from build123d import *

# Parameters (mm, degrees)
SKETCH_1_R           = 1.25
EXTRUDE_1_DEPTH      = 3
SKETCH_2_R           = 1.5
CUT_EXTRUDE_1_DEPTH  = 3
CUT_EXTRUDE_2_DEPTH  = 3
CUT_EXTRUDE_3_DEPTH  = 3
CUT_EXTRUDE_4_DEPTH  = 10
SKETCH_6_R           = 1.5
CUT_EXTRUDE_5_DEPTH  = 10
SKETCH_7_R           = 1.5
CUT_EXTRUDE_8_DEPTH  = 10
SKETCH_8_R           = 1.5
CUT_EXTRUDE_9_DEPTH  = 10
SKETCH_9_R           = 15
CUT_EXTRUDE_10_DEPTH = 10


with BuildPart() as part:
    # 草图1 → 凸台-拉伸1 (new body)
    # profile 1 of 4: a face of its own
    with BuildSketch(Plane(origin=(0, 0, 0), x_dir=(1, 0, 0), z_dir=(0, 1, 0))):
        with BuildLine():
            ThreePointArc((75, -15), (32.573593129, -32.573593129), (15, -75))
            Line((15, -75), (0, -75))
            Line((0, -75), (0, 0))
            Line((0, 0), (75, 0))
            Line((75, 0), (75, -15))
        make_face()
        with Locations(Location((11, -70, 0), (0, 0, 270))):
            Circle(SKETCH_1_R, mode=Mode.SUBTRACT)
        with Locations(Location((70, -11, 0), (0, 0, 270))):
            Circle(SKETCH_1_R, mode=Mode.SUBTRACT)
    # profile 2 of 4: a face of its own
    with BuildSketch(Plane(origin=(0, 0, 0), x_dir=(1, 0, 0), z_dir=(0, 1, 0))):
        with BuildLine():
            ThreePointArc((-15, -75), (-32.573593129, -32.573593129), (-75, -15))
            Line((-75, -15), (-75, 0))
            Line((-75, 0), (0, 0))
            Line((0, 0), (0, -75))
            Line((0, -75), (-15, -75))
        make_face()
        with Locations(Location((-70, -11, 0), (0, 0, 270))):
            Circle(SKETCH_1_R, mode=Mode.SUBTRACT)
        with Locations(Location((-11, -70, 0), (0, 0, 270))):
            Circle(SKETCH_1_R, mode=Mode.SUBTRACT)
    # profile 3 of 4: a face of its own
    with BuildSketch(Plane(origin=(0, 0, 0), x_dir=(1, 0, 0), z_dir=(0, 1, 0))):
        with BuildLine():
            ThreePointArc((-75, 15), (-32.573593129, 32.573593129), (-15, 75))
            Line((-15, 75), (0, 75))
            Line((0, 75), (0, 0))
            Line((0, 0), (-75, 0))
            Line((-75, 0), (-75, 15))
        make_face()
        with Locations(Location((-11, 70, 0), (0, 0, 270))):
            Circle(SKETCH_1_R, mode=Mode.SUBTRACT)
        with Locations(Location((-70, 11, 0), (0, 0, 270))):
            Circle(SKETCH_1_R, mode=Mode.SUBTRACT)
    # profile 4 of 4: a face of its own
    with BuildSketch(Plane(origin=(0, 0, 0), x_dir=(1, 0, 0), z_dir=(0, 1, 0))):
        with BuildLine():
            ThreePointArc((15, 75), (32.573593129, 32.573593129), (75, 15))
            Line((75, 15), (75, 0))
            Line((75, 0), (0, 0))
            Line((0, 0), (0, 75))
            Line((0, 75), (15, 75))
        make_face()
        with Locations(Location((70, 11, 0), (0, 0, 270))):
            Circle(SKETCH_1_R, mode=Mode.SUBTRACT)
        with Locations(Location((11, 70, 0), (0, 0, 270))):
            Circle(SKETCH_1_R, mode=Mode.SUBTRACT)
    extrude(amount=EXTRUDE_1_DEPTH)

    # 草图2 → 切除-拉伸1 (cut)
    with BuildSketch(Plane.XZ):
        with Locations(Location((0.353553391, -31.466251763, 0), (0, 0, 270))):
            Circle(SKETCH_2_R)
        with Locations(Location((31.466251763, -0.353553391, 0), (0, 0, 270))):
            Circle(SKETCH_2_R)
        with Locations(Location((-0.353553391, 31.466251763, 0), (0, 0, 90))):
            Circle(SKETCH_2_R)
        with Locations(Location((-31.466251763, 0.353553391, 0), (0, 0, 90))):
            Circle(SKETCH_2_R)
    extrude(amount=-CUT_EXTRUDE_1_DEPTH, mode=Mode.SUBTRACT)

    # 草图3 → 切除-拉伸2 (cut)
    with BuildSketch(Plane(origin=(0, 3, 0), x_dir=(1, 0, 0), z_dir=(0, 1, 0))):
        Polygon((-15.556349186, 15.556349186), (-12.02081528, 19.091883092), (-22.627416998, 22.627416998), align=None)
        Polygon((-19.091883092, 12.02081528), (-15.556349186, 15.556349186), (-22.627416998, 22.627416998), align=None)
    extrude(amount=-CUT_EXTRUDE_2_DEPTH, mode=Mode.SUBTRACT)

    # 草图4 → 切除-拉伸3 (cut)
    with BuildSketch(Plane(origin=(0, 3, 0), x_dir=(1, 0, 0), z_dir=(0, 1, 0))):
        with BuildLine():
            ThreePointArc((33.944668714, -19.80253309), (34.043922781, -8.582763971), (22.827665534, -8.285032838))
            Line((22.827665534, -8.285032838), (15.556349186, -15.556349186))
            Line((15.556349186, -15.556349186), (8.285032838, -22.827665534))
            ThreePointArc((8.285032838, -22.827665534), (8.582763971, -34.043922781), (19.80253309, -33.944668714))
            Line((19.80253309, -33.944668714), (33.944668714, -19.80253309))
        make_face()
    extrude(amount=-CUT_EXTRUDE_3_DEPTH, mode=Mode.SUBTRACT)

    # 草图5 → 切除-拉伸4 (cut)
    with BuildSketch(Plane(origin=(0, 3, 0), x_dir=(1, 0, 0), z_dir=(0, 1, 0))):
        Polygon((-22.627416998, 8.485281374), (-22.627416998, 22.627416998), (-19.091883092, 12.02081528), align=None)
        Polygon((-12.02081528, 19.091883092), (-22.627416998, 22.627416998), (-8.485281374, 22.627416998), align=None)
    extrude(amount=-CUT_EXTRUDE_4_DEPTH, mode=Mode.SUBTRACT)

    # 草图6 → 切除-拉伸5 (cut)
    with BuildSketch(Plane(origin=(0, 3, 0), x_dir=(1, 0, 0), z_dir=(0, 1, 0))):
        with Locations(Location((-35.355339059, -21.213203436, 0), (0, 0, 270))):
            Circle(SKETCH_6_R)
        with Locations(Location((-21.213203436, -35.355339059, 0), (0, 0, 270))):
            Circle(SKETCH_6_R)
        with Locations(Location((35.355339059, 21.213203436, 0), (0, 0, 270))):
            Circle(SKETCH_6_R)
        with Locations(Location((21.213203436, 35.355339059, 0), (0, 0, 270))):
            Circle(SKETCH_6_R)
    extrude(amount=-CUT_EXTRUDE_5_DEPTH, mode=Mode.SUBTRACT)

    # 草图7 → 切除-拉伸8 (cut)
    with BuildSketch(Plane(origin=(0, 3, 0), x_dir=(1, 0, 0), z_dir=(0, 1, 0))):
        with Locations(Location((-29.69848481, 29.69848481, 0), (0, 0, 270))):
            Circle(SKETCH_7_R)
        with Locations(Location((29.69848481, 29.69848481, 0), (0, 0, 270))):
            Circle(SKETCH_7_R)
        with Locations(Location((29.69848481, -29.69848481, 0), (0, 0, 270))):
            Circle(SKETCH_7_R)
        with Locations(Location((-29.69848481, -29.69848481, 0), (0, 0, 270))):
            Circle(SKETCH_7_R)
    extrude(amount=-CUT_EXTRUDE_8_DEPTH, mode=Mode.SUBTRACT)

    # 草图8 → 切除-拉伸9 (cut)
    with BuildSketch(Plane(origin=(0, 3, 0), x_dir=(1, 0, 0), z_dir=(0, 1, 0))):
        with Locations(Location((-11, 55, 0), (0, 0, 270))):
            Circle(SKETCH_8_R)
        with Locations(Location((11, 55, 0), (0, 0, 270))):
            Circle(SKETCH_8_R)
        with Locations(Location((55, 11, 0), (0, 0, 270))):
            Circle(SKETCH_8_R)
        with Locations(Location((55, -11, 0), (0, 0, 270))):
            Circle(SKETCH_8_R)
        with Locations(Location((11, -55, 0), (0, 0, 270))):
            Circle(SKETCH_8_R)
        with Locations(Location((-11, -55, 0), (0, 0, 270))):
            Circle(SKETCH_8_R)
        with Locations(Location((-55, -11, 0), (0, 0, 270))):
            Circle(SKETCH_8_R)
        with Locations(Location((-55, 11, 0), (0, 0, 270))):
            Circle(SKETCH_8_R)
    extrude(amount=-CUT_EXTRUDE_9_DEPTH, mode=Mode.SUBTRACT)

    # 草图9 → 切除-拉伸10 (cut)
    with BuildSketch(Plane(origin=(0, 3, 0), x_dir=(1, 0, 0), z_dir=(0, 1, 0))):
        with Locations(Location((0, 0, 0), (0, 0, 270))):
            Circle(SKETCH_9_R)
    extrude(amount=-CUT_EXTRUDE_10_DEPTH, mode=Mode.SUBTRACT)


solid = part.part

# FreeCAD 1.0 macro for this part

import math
import FreeCAD as App
import Part
import Sketcher

V = App.Vector
Q = App.Units.Quantity


def add_polygon(sketch, points):
    """Adds a closed chain of lines whose ends are joined by coincident constraints."""
    first, n = sketch.GeometryCount, len(points)
    for a, b in zip(points, points[1:] + points[:1]):
        sketch.addGeometry(Part.LineSegment(App.Vector(*a, 0), App.Vector(*b, 0)), False)
    for i in range(n):
        sketch.addConstraint(Sketcher.Constraint("Coincident", first + i, 2, first + (i + 1) % n, 1))

doc = App.newDocument("Part")
body = doc.addObject("PartDesign::Body", "Body")

# Sketch on XZ plane
sketch1 = body.newObject("Sketcher::SketchObject", "Sketch")
sketch1.AttachmentSupport = (doc.getObject("XZ_Plane"), [""])
sketch1.MapMode = "FlatFace"
sketch1.addGeometry(Part.ArcOfCircle(Part.Circle(V(75, 75, 0), V(0, 0, 1), 60), math.radians(-180), math.radians(-90)), False)
sketch1.addGeometry(Part.LineSegment(V(75, 15, 0), V(75, -15, 0)), False)
sketch1.addGeometry(Part.ArcOfCircle(Part.Circle(V(75, -75, 0), V(0, 0, 1), 60), math.radians(90), math.radians(180)), False)
sketch1.addGeometry(Part.LineSegment(V(15, -75, 0), V(-15, -75, 0)), False)
sketch1.addGeometry(Part.ArcOfCircle(Part.Circle(V(-75, -75, 0), V(0, 0, 1), 60), math.radians(0), math.radians(90)), False)
sketch1.addGeometry(Part.LineSegment(V(-75, -15, 0), V(-75, 15, 0)), False)
sketch1.addGeometry(Part.ArcOfCircle(Part.Circle(V(-75, 75, 0), V(0, 0, 1), 60), math.radians(-90), math.radians(0)), False)
sketch1.addGeometry(Part.LineSegment(V(-15, 75, 0), V(15, 75, 0)), False)
sketch1.addGeometry(Part.Circle(V(11, 70, 0), V(0, 0, 1), 1.25), False)
sketch1.addGeometry(Part.Circle(V(70, 11, 0), V(0, 0, 1), 1.25), False)
sketch1.addGeometry(Part.Circle(V(11, -70, 0), V(0, 0, 1), 1.25), False)
sketch1.addGeometry(Part.Circle(V(70, -11, 0), V(0, 0, 1), 1.25), False)
sketch1.addGeometry(Part.Circle(V(-70, 11, 0), V(0, 0, 1), 1.25), False)
sketch1.addGeometry(Part.Circle(V(-11, 70, 0), V(0, 0, 1), 1.25), False)
sketch1.addGeometry(Part.Circle(V(-70, -11, 0), V(0, 0, 1), 1.25), False)
sketch1.addGeometry(Part.Circle(V(-11, -70, 0), V(0, 0, 1), 1.25), False)
sketch1.addConstraint(Sketcher.Constraint("Coincident", 0, 2, 1, 1))
sketch1.addConstraint(Sketcher.Constraint("Coincident", 1, 2, 2, 1))
sketch1.addConstraint(Sketcher.Constraint("Coincident", 2, 2, 3, 1))
sketch1.addConstraint(Sketcher.Constraint("Coincident", 3, 2, 4, 1))
sketch1.addConstraint(Sketcher.Constraint("Coincident", 4, 2, 5, 1))
sketch1.addConstraint(Sketcher.Constraint("Coincident", 5, 2, 6, 1))
sketch1.addConstraint(Sketcher.Constraint("Coincident", 6, 2, 7, 1))
sketch1.addConstraint(Sketcher.Constraint("Coincident", 7, 2, 0, 1))
sketch1.addConstraint(Sketcher.Constraint("Vertical", 1))
sketch1.addConstraint(Sketcher.Constraint("Horizontal", 3))
sketch1.addConstraint(Sketcher.Constraint("Vertical", 5))
sketch1.addConstraint(Sketcher.Constraint("Horizontal", 7))
sketch1.addConstraint(Sketcher.Constraint("Equal", 0, 2))
sketch1.addConstraint(Sketcher.Constraint("Equal", 2, 4))
sketch1.addConstraint(Sketcher.Constraint("Equal", 4, 6))
sketch1.addConstraint(Sketcher.Constraint("Equal", 8, 9))
sketch1.addConstraint(Sketcher.Constraint("Equal", 9, 10))
sketch1.addConstraint(Sketcher.Constraint("Equal", 10, 11))
sketch1.addConstraint(Sketcher.Constraint("Equal", 11, 12))
sketch1.addConstraint(Sketcher.Constraint("Equal", 12, 13))
sketch1.addConstraint(Sketcher.Constraint("Equal", 13, 14))
sketch1.addConstraint(Sketcher.Constraint("Equal", 14, 15))
sketch1.addConstraint(Sketcher.Constraint("Symmetric", 0, 3, 4, 3, -1, 1))
sketch1.addConstraint(Sketcher.Constraint("Symmetric", 2, 3, 6, 3, -1, 1))
sketch1.addConstraint(Sketcher.Constraint("Symmetric", 11, 3, 12, 3, -1, 1))
sketch1.addConstraint(Sketcher.Constraint("Symmetric", 10, 3, 13, 3, -1, 1))
sketch1.addConstraint(Sketcher.Constraint("Symmetric", 9, 3, 14, 3, -1, 1))
sketch1.addConstraint(Sketcher.Constraint("Symmetric", 8, 3, 15, 3, -1, 1))
sketch1.addConstraint(Sketcher.Constraint("Symmetric", 2, 3, 4, 3, -2))
sketch1.addConstraint(Sketcher.Constraint("Symmetric", 9, 3, 12, 3, -2))
sketch1.addConstraint(Sketcher.Constraint("Symmetric", 8, 3, 13, 3, -2))
sketch1.addConstraint(Sketcher.Constraint("Horizontal", 4, 3, 2, 2))
sketch1.addConstraint(Sketcher.Constraint("Horizontal", 0, 3, 6, 2))
sketch1.addConstraint(Sketcher.Constraint("Vertical", 2, 3, 0, 2))
sketch1.addConstraint(Sketcher.Constraint("Vertical", 6, 3, 4, 2))
sketch1.addConstraint(Sketcher.Constraint("Equal", 7, 1))
sketch1.addConstraint(Sketcher.Constraint("Radius", 0, Q("60 mm")))
sketch1.addConstraint(Sketcher.Constraint("Diameter", 8, Q("2.5 mm")))
sketch1.addConstraint(Sketcher.Constraint("DistanceX", 3, 2, 3, 1, Q("30 mm")))
sketch1.addConstraint(Sketcher.Constraint("DistanceX", -1, 1, 8, 3, Q("11 mm")))
sketch1.addConstraint(Sketcher.Constraint("DistanceY", -1, 1, 8, 3, Q("70 mm")))
sketch1.addConstraint(Sketcher.Constraint("DistanceX", -1, 1, 9, 3, Q("70 mm")))
sketch1.addConstraint(Sketcher.Constraint("DistanceY", -1, 1, 9, 3, Q("11 mm")))
pad1 = body.newObject("PartDesign::Pad", "Pad")
pad1.Profile = sketch1
pad1.Length = 3
pad1.Reversed = True

# Sketch on XZ plane
sketch2 = body.newObject("Sketcher::SketchObject", "Sketch001")
sketch2.AttachmentSupport = (doc.getObject("XZ_Plane"), [""])
sketch2.MapMode = "FlatFace"
sketch2.addGeometry(Part.Circle(V(0.353553, -31.466252, 0), V(0, 0, 1), 1.5), False)
sketch2.addGeometry(Part.Circle(V(31.466252, -0.353553, 0), V(0, 0, 1), 1.5), False)
sketch2.addGeometry(Part.Circle(V(-0.353553, 31.466252, 0), V(0, 0, 1), 1.5), False)
sketch2.addGeometry(Part.Circle(V(-31.466252, 0.353553, 0), V(0, 0, 1), 1.5), False)
sketch2.addConstraint(Sketcher.Constraint("Equal", 0, 1))
sketch2.addConstraint(Sketcher.Constraint("Equal", 1, 2))
sketch2.addConstraint(Sketcher.Constraint("Equal", 2, 3))
sketch2.addConstraint(Sketcher.Constraint("Symmetric", 0, 3, 2, 3, -1, 1))
sketch2.addConstraint(Sketcher.Constraint("Symmetric", 1, 3, 3, 3, -1, 1))
sketch2.addConstraint(Sketcher.Constraint("Diameter", 0, Q("3 mm")))
sketch2.addConstraint(Sketcher.Constraint("DistanceX", 0, 3, 1, 3, Q("31.112698 mm")))
sketch2.addConstraint(Sketcher.Constraint("DistanceY", 0, 3, 1, 3, Q("31.112698 mm")))
sketch2.addConstraint(Sketcher.Constraint("DistanceY", 0, 3, -1, 1, Q("31.466252 mm")))
sketch2.addConstraint(Sketcher.Constraint("DistanceX", -1, 1, 1, 3, Q("31.466252 mm")))
pocket1 = body.newObject("PartDesign::Pocket", "Pocket")
pocket1.Profile = sketch2
pocket1.Length = 3

# Sketch on XZ plane
sketch3 = body.newObject("Sketcher::SketchObject", "Sketch002")
sketch3.AttachmentSupport = (doc.getObject("XZ_Plane"), [""])
sketch3.MapMode = "FlatFace"
sketch3.AttachmentOffset = App.Placement(V(0, 0, -3), App.Rotation())
add_polygon(sketch3, [(-12.020815, -19.091883), (-22.627417, -22.627417), (-19.091883, -12.020815)])  # lines 0-2
sketch3.addConstraint(Sketcher.Constraint("Equal", 0, 1))
sketch3.addConstraint(Sketcher.Constraint("Angle", 2, Q("-45 deg")))
sketch3.addConstraint(Sketcher.Constraint("Distance", 2, Q("10 mm")))
sketch3.addConstraint(Sketcher.Constraint("DistanceY", 0, 2, 1, 2, Q("10.606602 mm")))
sketch3.addConstraint(Sketcher.Constraint("DistanceX", 0, 2, -1, 1, Q("22.627417 mm")))
sketch3.addConstraint(Sketcher.Constraint("DistanceY", 0, 2, -1, 1, Q("22.627417 mm")))
pocket2 = body.newObject("PartDesign::Pocket", "Pocket001")
pocket2.Profile = sketch3
pocket2.Length = 3
pocket2.Reversed = True

# Sketch on XZ plane
sketch4 = body.newObject("Sketcher::SketchObject", "Sketch003")
sketch4.AttachmentSupport = (doc.getObject("XZ_Plane"), [""])
sketch4.MapMode = "FlatFace"
sketch4.AttachmentOffset = App.Placement(V(0, 0, -3), App.Rotation())
sketch4.addGeometry(Part.ArcOfCircle(Part.Circle(V(28.284271, 14.142136, 0), V(0, 0, 1), 8.005011), math.radians(-132.972618), math.radians(45)), False)
sketch4.addGeometry(Part.LineSegment(V(22.827666, 8.285033, 0), V(8.285033, 22.827666, 0)), False)
sketch4.addGeometry(Part.ArcOfCircle(Part.Circle(V(14.142136, 28.284271, 0), V(0, 0, 1), 8.005011), math.radians(45), math.radians(222.972618)), False)
sketch4.addGeometry(Part.LineSegment(V(19.802533, 33.944669, 0), V(33.944669, 19.802533, 0)), False)
sketch4.addConstraint(Sketcher.Constraint("Coincident", 0, 1, 1, 1))
sketch4.addConstraint(Sketcher.Constraint("Coincident", 1, 2, 2, 2))
sketch4.addConstraint(Sketcher.Constraint("Tangent", 2, 1, 3, 1))
sketch4.addConstraint(Sketcher.Constraint("Tangent", 3, 2, 0, 2))
sketch4.addConstraint(Sketcher.Constraint("Equal", 0, 2))
sketch4.addConstraint(Sketcher.Constraint("Parallel", 1, 3))
sketch4.addConstraint(Sketcher.Constraint("Angle", 1, Q("135 deg")))
sketch4.addConstraint(Sketcher.Constraint("Distance", 3, Q("20 mm")))
sketch4.addConstraint(Sketcher.Constraint("Radius", 0, Q("8.005011 mm")))
sketch4.addConstraint(Sketcher.Constraint("DistanceX", 1, 2, 2, 1, Q("11.5175 mm")))
sketch4.addConstraint(Sketcher.Constraint("DistanceX", -1, 1, 0, 3, Q("28.284271 mm")))
sketch4.addConstraint(Sketcher.Constraint("DistanceY", -1, 1, 2, 3, Q("28.284271 mm")))
pocket3 = body.newObject("PartDesign::Pocket", "Pocket002")
pocket3.Profile = sketch4
pocket3.Length = 3
pocket3.Reversed = True

# Sketch on XZ plane
sketch5 = body.newObject("Sketcher::SketchObject", "Sketch004")
sketch5.AttachmentSupport = (doc.getObject("XZ_Plane"), [""])
sketch5.MapMode = "FlatFace"
sketch5.AttachmentOffset = App.Placement(V(0, 0, -3), App.Rotation())
add_polygon(sketch5, [(-22.627417, -22.627417), (-22.627417, -8.485281), (-19.091883, -12.020815)])  # lines 0-2
add_polygon(sketch5, [(-22.627417, -22.627417), (-12.020815, -19.091883), (-8.485281, -22.627417)])  # lines 3-5
sketch5.addConstraint(Sketcher.Constraint("Vertical", 0))
sketch5.addConstraint(Sketcher.Constraint("Horizontal", 5))
sketch5.addConstraint(Sketcher.Constraint("Coincident", 5, 2, 2, 2))
sketch5.addConstraint(Sketcher.Constraint("Parallel", 1, 4))
sketch5.addConstraint(Sketcher.Constraint("Equal", 5, 0))
sketch5.addConstraint(Sketcher.Constraint("Equal", 2, 3))
sketch5.addConstraint(Sketcher.Constraint("Equal", 1, 4))
sketch5.addConstraint(Sketcher.Constraint("Distance", 1, Q("5 mm")))
sketch5.addConstraint(Sketcher.Constraint("DistanceY", 2, 2, 1, 2, Q("10.606602 mm")))
sketch5.addConstraint(Sketcher.Constraint("DistanceY", 0, 2, -1, 1, Q("8.485281 mm")))
sketch5.addConstraint(Sketcher.Constraint("DistanceX", 4, 2, -1, 1, Q("8.485281 mm")))
pocket4 = body.newObject("PartDesign::Pocket", "Pocket003")
pocket4.Profile = sketch5
pocket4.Length = 10
pocket4.Reversed = True

# Sketch on XZ plane
sketch6 = body.newObject("Sketcher::SketchObject", "Sketch005")
sketch6.AttachmentSupport = (doc.getObject("XZ_Plane"), [""])
sketch6.MapMode = "FlatFace"
sketch6.AttachmentOffset = App.Placement(V(0, 0, -3), App.Rotation())
sketch6.addGeometry(Part.Circle(V(-35.355339, 21.213203, 0), V(0, 0, 1), 1.5), False)
sketch6.addGeometry(Part.Circle(V(-21.213203, 35.355339, 0), V(0, 0, 1), 1.5), False)
sketch6.addGeometry(Part.Circle(V(35.355339, -21.213203, 0), V(0, 0, 1), 1.5), False)
sketch6.addGeometry(Part.Circle(V(21.213203, -35.355339, 0), V(0, 0, 1), 1.5), False)
sketch6.addConstraint(Sketcher.Constraint("Equal", 0, 1))
sketch6.addConstraint(Sketcher.Constraint("Equal", 1, 2))
sketch6.addConstraint(Sketcher.Constraint("Equal", 2, 3))
sketch6.addConstraint(Sketcher.Constraint("Symmetric", 0, 3, 2, 3, -1, 1))
sketch6.addConstraint(Sketcher.Constraint("Symmetric", 1, 3, 3, 3, -1, 1))
sketch6.addConstraint(Sketcher.Constraint("Diameter", 0, Q("3 mm")))
sketch6.addConstraint(Sketcher.Constraint("DistanceX", 0, 3, -1, 1, Q("35.355339 mm")))
sketch6.addConstraint(Sketcher.Constraint("DistanceY", -1, 1, 1, 3, Q("35.355339 mm")))
sketch6.addConstraint(Sketcher.Constraint("DistanceY", -1, 1, 0, 3, Q("21.213203 mm")))
sketch6.addConstraint(Sketcher.Constraint("DistanceX", 1, 3, -1, 1, Q("21.213203 mm")))
pocket5 = body.newObject("PartDesign::Pocket", "Pocket004")
pocket5.Profile = sketch6
pocket5.Length = 10
pocket5.Reversed = True

# Sketch on XZ plane
sketch7 = body.newObject("Sketcher::SketchObject", "Sketch006")
sketch7.AttachmentSupport = (doc.getObject("XZ_Plane"), [""])
sketch7.MapMode = "FlatFace"
sketch7.AttachmentOffset = App.Placement(V(0, 0, -3), App.Rotation())
sketch7.addGeometry(Part.Circle(V(-29.698485, -29.698485, 0), V(0, 0, 1), 1.5), False)
sketch7.addGeometry(Part.Circle(V(29.698485, -29.698485, 0), V(0, 0, 1), 1.5), False)
sketch7.addGeometry(Part.Circle(V(29.698485, 29.698485, 0), V(0, 0, 1), 1.5), False)
sketch7.addGeometry(Part.Circle(V(-29.698485, 29.698485, 0), V(0, 0, 1), 1.5), False)
sketch7.addConstraint(Sketcher.Constraint("Equal", 0, 1))
sketch7.addConstraint(Sketcher.Constraint("Equal", 1, 2))
sketch7.addConstraint(Sketcher.Constraint("Equal", 2, 3))
sketch7.addConstraint(Sketcher.Constraint("Symmetric", 0, 3, 2, 3, -1, 1))
sketch7.addConstraint(Sketcher.Constraint("Symmetric", 1, 3, 3, 3, -1, 1))
sketch7.addConstraint(Sketcher.Constraint("Symmetric", 0, 3, 1, 3, -2))
sketch7.addConstraint(Sketcher.Constraint("Diameter", 0, Q("3 mm")))
sketch7.addConstraint(Sketcher.Constraint("DistanceX", 0, 3, 1, 3, Q("59.39697 mm")))
sketch7.addConstraint(Sketcher.Constraint("DistanceY", 1, 3, 2, 3, Q("59.39697 mm")))
pocket6 = body.newObject("PartDesign::Pocket", "Pocket005")
pocket6.Profile = sketch7
pocket6.Length = 10
pocket6.Reversed = True

# Sketch on XZ plane
sketch8 = body.newObject("Sketcher::SketchObject", "Sketch007")
sketch8.AttachmentSupport = (doc.getObject("XZ_Plane"), [""])
sketch8.MapMode = "FlatFace"
sketch8.AttachmentOffset = App.Placement(V(0, 0, -3), App.Rotation())
sketch8.addGeometry(Part.Circle(V(-11, -55, 0), V(0, 0, 1), 1.5), False)
sketch8.addGeometry(Part.Circle(V(11, -55, 0), V(0, 0, 1), 1.5), False)
sketch8.addGeometry(Part.Circle(V(55, -11, 0), V(0, 0, 1), 1.5), False)
sketch8.addGeometry(Part.Circle(V(55, 11, 0), V(0, 0, 1), 1.5), False)
sketch8.addGeometry(Part.Circle(V(11, 55, 0), V(0, 0, 1), 1.5), False)
sketch8.addGeometry(Part.Circle(V(-11, 55, 0), V(0, 0, 1), 1.5), False)
sketch8.addGeometry(Part.Circle(V(-55, 11, 0), V(0, 0, 1), 1.5), False)
sketch8.addGeometry(Part.Circle(V(-55, -11, 0), V(0, 0, 1), 1.5), False)
sketch8.addConstraint(Sketcher.Constraint("Equal", 0, 1))
sketch8.addConstraint(Sketcher.Constraint("Equal", 1, 2))
sketch8.addConstraint(Sketcher.Constraint("Equal", 2, 3))
sketch8.addConstraint(Sketcher.Constraint("Equal", 3, 4))
sketch8.addConstraint(Sketcher.Constraint("Equal", 4, 5))
sketch8.addConstraint(Sketcher.Constraint("Equal", 5, 6))
sketch8.addConstraint(Sketcher.Constraint("Equal", 6, 7))
sketch8.addConstraint(Sketcher.Constraint("Symmetric", 0, 3, 4, 3, -1, 1))
sketch8.addConstraint(Sketcher.Constraint("Symmetric", 1, 3, 5, 3, -1, 1))
sketch8.addConstraint(Sketcher.Constraint("Symmetric", 2, 3, 6, 3, -1, 1))
sketch8.addConstraint(Sketcher.Constraint("Symmetric", 3, 3, 7, 3, -1, 1))
sketch8.addConstraint(Sketcher.Constraint("Symmetric", 0, 3, 1, 3, -2))
sketch8.addConstraint(Sketcher.Constraint("Symmetric", 3, 3, 6, 3, -2))
sketch8.addConstraint(Sketcher.Constraint("Diameter", 0, Q("3 mm")))
sketch8.addConstraint(Sketcher.Constraint("DistanceX", 0, 3, -1, 1, Q("11 mm")))
sketch8.addConstraint(Sketcher.Constraint("DistanceY", 0, 3, -1, 1, Q("55 mm")))
sketch8.addConstraint(Sketcher.Constraint("DistanceX", -1, 1, 2, 3, Q("55 mm")))
sketch8.addConstraint(Sketcher.Constraint("DistanceY", 2, 3, -1, 1, Q("11 mm")))
pocket7 = body.newObject("PartDesign::Pocket", "Pocket006")
pocket7.Profile = sketch8
pocket7.Length = 10
pocket7.Reversed = True

# Sketch on XZ plane
sketch9 = body.newObject("Sketcher::SketchObject", "Sketch008")
sketch9.AttachmentSupport = (doc.getObject("XZ_Plane"), [""])
sketch9.MapMode = "FlatFace"
sketch9.AttachmentOffset = App.Placement(V(0, 0, -3), App.Rotation())
sketch9.addGeometry(Part.Circle(V(0, 0, 0), V(0, 0, 1), 15), False)
sketch9.addConstraint(Sketcher.Constraint("Coincident", 0, 3, -1, 1))
sketch9.addConstraint(Sketcher.Constraint("Diameter", 0, Q("30 mm")))
pocket8 = body.newObject("PartDesign::Pocket", "Pocket007")
pocket8.Profile = sketch9
pocket8.Length = 10
pocket8.Reversed = True

doc.recompute()
